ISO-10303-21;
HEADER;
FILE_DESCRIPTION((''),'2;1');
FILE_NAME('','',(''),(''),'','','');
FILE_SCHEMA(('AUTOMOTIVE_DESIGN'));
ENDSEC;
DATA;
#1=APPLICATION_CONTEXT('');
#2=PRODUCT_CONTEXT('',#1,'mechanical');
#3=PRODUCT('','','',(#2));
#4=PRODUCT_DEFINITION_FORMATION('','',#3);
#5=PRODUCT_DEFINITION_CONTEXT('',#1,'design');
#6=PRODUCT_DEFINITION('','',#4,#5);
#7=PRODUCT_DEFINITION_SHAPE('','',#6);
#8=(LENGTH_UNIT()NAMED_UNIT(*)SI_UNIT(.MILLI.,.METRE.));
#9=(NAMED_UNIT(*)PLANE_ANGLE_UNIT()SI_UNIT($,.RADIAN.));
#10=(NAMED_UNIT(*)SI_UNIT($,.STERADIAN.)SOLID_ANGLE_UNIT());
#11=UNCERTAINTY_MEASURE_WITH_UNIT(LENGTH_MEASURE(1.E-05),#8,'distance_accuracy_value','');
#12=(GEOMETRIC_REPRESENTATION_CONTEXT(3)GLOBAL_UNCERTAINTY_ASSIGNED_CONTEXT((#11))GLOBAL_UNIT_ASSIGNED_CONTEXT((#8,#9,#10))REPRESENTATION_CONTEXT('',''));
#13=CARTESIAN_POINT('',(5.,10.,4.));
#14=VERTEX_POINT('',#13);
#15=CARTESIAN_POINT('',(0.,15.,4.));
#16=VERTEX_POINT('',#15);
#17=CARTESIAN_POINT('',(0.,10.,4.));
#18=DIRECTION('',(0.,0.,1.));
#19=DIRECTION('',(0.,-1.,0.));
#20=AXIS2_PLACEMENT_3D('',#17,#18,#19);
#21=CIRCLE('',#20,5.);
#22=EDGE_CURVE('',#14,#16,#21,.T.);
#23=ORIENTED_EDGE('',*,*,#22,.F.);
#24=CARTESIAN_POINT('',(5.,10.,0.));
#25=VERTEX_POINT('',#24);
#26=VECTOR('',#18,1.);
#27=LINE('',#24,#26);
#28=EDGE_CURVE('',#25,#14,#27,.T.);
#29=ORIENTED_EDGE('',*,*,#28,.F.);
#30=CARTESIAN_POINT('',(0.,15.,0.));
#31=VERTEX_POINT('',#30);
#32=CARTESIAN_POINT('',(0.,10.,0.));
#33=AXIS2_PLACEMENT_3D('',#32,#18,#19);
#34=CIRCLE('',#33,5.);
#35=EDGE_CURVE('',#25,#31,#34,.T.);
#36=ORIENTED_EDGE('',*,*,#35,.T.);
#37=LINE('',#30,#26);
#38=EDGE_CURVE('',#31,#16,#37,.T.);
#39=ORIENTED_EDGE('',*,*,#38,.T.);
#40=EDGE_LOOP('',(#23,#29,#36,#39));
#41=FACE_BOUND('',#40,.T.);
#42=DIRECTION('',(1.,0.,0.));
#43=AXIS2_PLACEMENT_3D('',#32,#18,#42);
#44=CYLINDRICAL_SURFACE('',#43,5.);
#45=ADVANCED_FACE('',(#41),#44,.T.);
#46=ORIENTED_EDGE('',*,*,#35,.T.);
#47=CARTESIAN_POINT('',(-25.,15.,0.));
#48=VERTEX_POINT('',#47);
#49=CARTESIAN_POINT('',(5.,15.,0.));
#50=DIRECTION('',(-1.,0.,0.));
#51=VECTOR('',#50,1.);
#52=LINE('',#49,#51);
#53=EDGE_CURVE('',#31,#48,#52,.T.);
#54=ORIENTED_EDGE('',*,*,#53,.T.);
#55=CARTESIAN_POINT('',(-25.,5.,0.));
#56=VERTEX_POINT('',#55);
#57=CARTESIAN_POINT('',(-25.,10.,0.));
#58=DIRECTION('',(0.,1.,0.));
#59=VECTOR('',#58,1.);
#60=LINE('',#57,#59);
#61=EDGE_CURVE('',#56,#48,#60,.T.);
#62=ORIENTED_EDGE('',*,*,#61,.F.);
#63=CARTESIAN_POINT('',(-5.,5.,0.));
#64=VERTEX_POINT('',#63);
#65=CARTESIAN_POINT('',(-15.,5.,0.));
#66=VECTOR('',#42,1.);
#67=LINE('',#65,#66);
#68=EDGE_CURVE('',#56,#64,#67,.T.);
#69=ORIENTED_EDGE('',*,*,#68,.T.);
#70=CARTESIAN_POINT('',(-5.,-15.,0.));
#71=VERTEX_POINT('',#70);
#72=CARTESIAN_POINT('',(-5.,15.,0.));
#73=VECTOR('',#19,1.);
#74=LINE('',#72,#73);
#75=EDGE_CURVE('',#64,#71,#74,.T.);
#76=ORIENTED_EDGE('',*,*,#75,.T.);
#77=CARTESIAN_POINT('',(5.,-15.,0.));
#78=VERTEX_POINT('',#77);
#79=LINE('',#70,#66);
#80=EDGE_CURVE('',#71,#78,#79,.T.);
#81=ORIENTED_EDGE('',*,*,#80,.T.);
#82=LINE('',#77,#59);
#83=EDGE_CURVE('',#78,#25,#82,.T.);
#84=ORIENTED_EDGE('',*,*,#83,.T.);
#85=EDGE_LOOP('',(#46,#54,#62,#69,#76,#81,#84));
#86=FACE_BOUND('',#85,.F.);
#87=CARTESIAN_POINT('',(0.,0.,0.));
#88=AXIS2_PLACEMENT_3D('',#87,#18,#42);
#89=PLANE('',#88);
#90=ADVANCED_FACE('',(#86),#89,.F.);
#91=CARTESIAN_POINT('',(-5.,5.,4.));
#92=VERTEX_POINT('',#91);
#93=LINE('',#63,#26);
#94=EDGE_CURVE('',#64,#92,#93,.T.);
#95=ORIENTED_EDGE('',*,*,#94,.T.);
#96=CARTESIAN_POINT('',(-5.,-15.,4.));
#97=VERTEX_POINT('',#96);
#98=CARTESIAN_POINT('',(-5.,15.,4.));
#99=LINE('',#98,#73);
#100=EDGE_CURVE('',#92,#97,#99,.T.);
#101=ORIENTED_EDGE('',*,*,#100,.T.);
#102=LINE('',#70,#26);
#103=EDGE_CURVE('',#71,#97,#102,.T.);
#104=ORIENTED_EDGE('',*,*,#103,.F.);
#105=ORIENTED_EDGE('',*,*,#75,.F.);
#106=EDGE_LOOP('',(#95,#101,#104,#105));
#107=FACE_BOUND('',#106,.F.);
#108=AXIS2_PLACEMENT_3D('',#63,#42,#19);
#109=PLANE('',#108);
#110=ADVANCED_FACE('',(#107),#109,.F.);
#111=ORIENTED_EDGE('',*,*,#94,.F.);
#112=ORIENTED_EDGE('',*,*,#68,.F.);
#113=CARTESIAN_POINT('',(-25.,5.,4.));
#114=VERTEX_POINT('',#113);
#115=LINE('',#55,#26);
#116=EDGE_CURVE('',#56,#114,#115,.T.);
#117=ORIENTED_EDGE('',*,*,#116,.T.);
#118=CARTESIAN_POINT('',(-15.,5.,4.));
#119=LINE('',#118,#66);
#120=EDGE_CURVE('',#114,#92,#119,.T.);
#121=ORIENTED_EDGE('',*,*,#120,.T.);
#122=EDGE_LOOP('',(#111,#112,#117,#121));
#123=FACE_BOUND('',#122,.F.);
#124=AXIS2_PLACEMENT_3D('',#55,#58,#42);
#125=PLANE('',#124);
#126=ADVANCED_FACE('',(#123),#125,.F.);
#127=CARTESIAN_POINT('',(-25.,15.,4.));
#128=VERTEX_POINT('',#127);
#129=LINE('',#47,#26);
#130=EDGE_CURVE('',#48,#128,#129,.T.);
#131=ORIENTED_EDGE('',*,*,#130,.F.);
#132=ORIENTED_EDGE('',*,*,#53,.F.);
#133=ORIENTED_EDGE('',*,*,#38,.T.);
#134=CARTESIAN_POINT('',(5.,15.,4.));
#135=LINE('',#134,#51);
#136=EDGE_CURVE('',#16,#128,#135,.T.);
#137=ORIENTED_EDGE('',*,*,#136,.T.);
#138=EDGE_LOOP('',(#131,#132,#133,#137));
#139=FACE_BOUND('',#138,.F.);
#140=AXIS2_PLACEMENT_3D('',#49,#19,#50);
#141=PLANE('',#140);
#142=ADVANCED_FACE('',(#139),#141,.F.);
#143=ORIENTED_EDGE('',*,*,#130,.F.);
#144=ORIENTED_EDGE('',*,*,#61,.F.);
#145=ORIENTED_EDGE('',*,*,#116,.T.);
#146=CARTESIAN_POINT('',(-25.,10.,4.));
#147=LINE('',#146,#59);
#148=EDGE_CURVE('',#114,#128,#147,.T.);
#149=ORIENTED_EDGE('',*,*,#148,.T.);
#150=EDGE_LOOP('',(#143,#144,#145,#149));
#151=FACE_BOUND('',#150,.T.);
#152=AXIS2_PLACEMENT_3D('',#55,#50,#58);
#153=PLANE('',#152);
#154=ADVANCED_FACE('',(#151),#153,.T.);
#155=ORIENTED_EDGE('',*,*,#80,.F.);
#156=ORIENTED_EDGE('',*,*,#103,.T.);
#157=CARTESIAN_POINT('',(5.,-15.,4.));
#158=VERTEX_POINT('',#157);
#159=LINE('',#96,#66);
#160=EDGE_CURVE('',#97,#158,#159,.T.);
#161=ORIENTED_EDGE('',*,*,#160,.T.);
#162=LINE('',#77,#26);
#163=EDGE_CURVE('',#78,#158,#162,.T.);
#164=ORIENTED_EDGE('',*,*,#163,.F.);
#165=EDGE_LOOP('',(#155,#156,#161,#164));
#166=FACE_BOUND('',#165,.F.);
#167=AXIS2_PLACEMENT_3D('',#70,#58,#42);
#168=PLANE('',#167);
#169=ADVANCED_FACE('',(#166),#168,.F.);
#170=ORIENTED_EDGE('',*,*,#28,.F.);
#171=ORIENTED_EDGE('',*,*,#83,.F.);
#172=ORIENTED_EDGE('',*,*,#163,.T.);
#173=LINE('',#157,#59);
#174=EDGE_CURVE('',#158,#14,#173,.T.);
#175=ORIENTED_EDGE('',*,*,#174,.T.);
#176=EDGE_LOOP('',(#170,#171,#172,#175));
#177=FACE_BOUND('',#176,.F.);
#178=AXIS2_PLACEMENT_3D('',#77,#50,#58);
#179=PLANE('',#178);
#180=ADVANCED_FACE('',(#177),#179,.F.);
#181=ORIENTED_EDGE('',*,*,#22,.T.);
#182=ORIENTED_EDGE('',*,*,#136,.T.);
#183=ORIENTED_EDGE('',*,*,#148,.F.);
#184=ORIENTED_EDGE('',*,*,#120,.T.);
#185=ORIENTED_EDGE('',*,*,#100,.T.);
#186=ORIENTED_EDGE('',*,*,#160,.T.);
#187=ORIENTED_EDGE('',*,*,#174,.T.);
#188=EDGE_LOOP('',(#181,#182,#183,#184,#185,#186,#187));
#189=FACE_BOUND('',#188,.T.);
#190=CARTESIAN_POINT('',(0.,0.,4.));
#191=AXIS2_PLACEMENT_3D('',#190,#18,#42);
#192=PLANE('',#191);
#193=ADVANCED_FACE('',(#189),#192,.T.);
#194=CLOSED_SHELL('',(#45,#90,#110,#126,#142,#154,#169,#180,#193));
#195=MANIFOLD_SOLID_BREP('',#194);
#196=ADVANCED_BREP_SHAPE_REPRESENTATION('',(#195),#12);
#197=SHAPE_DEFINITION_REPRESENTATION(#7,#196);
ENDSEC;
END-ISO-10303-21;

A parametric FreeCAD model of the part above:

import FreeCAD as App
import Part
import Sketcher

V = App.Vector


def edges_at(feature, points):
    """Names of the edges that pass closest to the given points."""
    edges = feature.Shape.Edges
    near = lambda p: min(range(len(edges)), key=lambda i: edges[i].distToShape(Part.Vertex(*p))[0])
    return sorted({f"Edge{near(p) + 1}" for p in points})

doc = App.newDocument("Part")
body = doc.addObject("PartDesign::Body", "Body")

# Sketch on XY plane
sketch1 = body.newObject("Sketcher::SketchObject", "Sketch")
sketch1.AttachmentSupport = (doc.getObject("XY_Plane"), [""])
sketch1.MapMode = "FlatFace"
sketch1.addGeometry(Part.LineSegment(V(5, -15, 0), V(5, 15, 0)), False)
sketch1.addGeometry(Part.LineSegment(V(5, 15, 0), V(-25, 15, 0)), False)
sketch1.addGeometry(Part.LineSegment(V(-25, 15, 0), V(-25, 5, 0)), False)
sketch1.addGeometry(Part.LineSegment(V(-25, 5, 0), V(-5, 5, 0)), False)
sketch1.addGeometry(Part.LineSegment(V(-5, 5, 0), V(-5, -15, 0)), False)
sketch1.addGeometry(Part.LineSegment(V(-5, -15, 0), V(5, -15, 0)), False)
sketch1.addConstraint(Sketcher.Constraint("Coincident", 0, 2, 1, 1))
sketch1.addConstraint(Sketcher.Constraint("Coincident", 1, 2, 2, 1))
sketch1.addConstraint(Sketcher.Constraint("Coincident", 2, 2, 3, 1))
sketch1.addConstraint(Sketcher.Constraint("Coincident", 3, 2, 4, 1))
sketch1.addConstraint(Sketcher.Constraint("Coincident", 4, 2, 5, 1))
sketch1.addConstraint(Sketcher.Constraint("Coincident", 5, 2, 0, 1))
sketch1.addConstraint(Sketcher.Constraint("Vertical", 0))
sketch1.addConstraint(Sketcher.Constraint("Horizontal", 1))
sketch1.addConstraint(Sketcher.Constraint("Vertical", 2))
sketch1.addConstraint(Sketcher.Constraint("Horizontal", 3))
sketch1.addConstraint(Sketcher.Constraint("Vertical", 4))
sketch1.addConstraint(Sketcher.Constraint("Horizontal", 5))
sketch1.addConstraint(Sketcher.Constraint("Symmetric", 0, 2, 4, 2, -1, 1))
sketch1.addConstraint(Sketcher.Constraint("Equal", 1, 0))
sketch1.addConstraint(Sketcher.Constraint("Equal", 5, 2))
sketch1.addConstraint(Sketcher.Constraint("DistanceX", 1, 2, 1, 1, 30.0))
sketch1.addConstraint(Sketcher.Constraint("DistanceX", 3, 1, 3, 2, 20.0))
pad1 = body.newObject("PartDesign::Pad", "Pad")
pad1.Profile = sketch1
pad1.Length = 4
doc.recompute()

fillet = body.newObject("PartDesign::Fillet", "Fillet")
fillet.Base = (pad1, edges_at(pad1, [(5, 15, 2)]))
fillet.Radius = 5

doc.recompute()
